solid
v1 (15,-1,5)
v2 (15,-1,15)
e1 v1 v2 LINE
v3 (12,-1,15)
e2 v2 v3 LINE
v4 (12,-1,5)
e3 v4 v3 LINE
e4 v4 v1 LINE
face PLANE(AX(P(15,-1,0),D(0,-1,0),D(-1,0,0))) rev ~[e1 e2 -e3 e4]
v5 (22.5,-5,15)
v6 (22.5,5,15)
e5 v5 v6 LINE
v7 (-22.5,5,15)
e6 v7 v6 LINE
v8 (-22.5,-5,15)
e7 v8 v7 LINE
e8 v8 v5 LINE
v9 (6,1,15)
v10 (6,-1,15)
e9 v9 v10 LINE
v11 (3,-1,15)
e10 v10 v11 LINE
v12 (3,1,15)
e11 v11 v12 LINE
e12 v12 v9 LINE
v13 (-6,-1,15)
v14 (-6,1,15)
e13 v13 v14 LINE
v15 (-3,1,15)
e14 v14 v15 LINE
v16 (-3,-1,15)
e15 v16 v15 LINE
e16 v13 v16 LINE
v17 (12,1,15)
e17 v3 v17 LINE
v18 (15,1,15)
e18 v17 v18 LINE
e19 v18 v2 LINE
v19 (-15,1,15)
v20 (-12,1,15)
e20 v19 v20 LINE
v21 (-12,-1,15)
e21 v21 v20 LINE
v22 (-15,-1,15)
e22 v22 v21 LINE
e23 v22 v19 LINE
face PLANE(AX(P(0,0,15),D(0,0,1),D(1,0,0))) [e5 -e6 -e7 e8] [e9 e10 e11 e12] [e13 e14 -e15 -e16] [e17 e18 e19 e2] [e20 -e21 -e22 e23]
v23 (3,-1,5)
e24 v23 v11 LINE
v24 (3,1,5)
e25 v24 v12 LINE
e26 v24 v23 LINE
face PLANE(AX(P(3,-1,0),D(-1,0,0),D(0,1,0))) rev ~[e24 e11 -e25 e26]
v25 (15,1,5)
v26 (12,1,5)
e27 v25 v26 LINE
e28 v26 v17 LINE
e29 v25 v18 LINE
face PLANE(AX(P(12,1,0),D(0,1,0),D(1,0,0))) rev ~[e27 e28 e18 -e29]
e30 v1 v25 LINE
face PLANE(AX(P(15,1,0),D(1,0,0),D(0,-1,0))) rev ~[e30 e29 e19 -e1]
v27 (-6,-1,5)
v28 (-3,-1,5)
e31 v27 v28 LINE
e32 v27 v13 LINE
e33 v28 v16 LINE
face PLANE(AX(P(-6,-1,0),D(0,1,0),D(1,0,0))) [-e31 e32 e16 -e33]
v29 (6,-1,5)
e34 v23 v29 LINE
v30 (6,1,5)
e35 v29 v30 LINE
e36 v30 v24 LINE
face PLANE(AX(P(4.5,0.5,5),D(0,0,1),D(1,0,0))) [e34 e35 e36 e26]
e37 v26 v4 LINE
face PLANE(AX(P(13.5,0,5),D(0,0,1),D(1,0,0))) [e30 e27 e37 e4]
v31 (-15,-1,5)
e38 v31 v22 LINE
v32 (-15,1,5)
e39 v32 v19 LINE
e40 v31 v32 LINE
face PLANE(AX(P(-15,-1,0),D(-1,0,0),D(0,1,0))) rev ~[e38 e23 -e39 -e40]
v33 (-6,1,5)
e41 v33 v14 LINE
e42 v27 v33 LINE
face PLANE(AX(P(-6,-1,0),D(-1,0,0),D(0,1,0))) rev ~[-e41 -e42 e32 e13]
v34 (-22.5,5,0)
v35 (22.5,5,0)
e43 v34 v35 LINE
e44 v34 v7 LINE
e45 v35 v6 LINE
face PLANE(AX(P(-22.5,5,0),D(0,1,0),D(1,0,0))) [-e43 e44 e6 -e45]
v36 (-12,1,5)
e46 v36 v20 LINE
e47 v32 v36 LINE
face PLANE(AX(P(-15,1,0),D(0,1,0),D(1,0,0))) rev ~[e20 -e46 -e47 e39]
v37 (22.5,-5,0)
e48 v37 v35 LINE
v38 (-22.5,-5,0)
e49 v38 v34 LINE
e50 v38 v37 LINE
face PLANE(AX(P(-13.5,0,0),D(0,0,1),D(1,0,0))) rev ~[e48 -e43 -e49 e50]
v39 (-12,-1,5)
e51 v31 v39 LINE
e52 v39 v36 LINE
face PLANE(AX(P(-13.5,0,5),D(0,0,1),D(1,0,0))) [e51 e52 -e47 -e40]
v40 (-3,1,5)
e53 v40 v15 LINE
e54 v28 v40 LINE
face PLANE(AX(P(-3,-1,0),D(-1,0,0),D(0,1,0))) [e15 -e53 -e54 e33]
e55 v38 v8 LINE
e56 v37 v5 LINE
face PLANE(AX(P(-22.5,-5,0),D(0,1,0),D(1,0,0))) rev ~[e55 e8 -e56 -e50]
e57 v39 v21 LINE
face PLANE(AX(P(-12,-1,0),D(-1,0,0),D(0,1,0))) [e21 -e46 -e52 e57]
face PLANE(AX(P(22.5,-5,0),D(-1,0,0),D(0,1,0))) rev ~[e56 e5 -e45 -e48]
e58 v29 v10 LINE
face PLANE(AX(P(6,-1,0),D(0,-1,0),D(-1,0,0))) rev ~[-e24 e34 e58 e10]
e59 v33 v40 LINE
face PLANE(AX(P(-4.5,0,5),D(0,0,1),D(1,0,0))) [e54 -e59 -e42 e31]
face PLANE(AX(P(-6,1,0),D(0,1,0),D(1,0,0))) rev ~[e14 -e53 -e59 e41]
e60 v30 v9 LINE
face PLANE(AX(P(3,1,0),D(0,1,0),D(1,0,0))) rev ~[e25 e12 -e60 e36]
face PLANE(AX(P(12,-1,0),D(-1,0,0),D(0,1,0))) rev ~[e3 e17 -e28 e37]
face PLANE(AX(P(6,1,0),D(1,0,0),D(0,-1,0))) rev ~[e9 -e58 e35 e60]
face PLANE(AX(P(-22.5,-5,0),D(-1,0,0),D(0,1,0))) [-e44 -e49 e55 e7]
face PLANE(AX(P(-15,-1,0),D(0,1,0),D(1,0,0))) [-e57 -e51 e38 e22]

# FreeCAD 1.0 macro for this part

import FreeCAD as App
import Part
import Sketcher
from FreeCAD import Vector

doc = App.newDocument("Part")
body = doc.addObject("PartDesign::Body", "Body")

# Sketch on XY plane
sketch1 = doc.addObject("Sketcher::SketchObject", "Sketch")
body.addObject(sketch1)
sketch1.AttachmentSupport = (doc.XY_Plane, [""])
sketch1.MapMode = "FlatFace"
sketch1.addGeometry(Part.LineSegment(Vector(-22.5, 5, 0), Vector(-22.5, -5, 0)), False)
sketch1.addGeometry(Part.LineSegment(Vector(-22.5, -5, 0), Vector(22.5, -5, 0)), False)
sketch1.addGeometry(Part.LineSegment(Vector(22.5, -5, 0), Vector(22.5, 5, 0)), False)
sketch1.addGeometry(Part.LineSegment(Vector(22.5, 5, 0), Vector(-22.5, 5, 0)), False)
sketch1.addGeometry(Part.LineSegment(Vector(-12, -1, 0), Vector(-15, -1, 0)), False)
sketch1.addGeometry(Part.LineSegment(Vector(-15, -1, 0), Vector(-15, 1, 0)), False)
sketch1.addGeometry(Part.LineSegment(Vector(-15, 1, 0), Vector(-12, 1, 0)), False)
sketch1.addGeometry(Part.LineSegment(Vector(-12, 1, 0), Vector(-12, -1, 0)), False)
sketch1.addGeometry(Part.LineSegment(Vector(-3, -1, 0), Vector(-6, -1, 0)), False)
sketch1.addGeometry(Part.LineSegment(Vector(-6, -1, 0), Vector(-6, 1, 0)), False)
sketch1.addGeometry(Part.LineSegment(Vector(-6, 1, 0), Vector(-3, 1, 0)), False)
sketch1.addGeometry(Part.LineSegment(Vector(-3, 1, 0), Vector(-3, -1, 0)), False)
sketch1.addGeometry(Part.LineSegment(Vector(6, -1, 0), Vector(3, -1, 0)), False)
sketch1.addGeometry(Part.LineSegment(Vector(3, -1, 0), Vector(3, 1, 0)), False)
sketch1.addGeometry(Part.LineSegment(Vector(3, 1, 0), Vector(6, 1, 0)), False)
sketch1.addGeometry(Part.LineSegment(Vector(6, 1, 0), Vector(6, -1, 0)), False)
sketch1.addGeometry(Part.LineSegment(Vector(15, -1, 0), Vector(12, -1, 0)), False)
sketch1.addGeometry(Part.LineSegment(Vector(12, -1, 0), Vector(12, 1, 0)), False)
sketch1.addGeometry(Part.LineSegment(Vector(12, 1, 0), Vector(15, 1, 0)), False)
sketch1.addGeometry(Part.LineSegment(Vector(15, 1, 0), Vector(15, -1, 0)), False)
sketch1.addConstraint(Sketcher.Constraint("Coincident", 0, 2, 1, 1))
sketch1.addConstraint(Sketcher.Constraint("Coincident", 1, 2, 2, 1))
sketch1.addConstraint(Sketcher.Constraint("Coincident", 2, 2, 3, 1))
sketch1.addConstraint(Sketcher.Constraint("Coincident", 3, 2, 0, 1))
sketch1.addConstraint(Sketcher.Constraint("Coincident", 4, 2, 5, 1))
sketch1.addConstraint(Sketcher.Constraint("Coincident", 5, 2, 6, 1))
sketch1.addConstraint(Sketcher.Constraint("Coincident", 6, 2, 7, 1))
sketch1.addConstraint(Sketcher.Constraint("Coincident", 7, 2, 4, 1))
sketch1.addConstraint(Sketcher.Constraint("Coincident", 8, 2, 9, 1))
sketch1.addConstraint(Sketcher.Constraint("Coincident", 9, 2, 10, 1))
sketch1.addConstraint(Sketcher.Constraint("Coincident", 10, 2, 11, 1))
sketch1.addConstraint(Sketcher.Constraint("Coincident", 11, 2, 8, 1))
sketch1.addConstraint(Sketcher.Constraint("Coincident", 12, 2, 13, 1))
sketch1.addConstraint(Sketcher.Constraint("Coincident", 13, 2, 14, 1))
sketch1.addConstraint(Sketcher.Constraint("Coincident", 14, 2, 15, 1))
sketch1.addConstraint(Sketcher.Constraint("Coincident", 15, 2, 12, 1))
sketch1.addConstraint(Sketcher.Constraint("Coincident", 16, 2, 17, 1))
sketch1.addConstraint(Sketcher.Constraint("Coincident", 17, 2, 18, 1))
sketch1.addConstraint(Sketcher.Constraint("Coincident", 18, 2, 19, 1))
sketch1.addConstraint(Sketcher.Constraint("Coincident", 19, 2, 16, 1))
sketch1.addConstraint(Sketcher.Constraint("Vertical", 0))
sketch1.addConstraint(Sketcher.Constraint("Horizontal", 1))
sketch1.addConstraint(Sketcher.Constraint("Vertical", 2))
sketch1.addConstraint(Sketcher.Constraint("Horizontal", 3))
sketch1.addConstraint(Sketcher.Constraint("Horizontal", 4))
sketch1.addConstraint(Sketcher.Constraint("Vertical", 5))
sketch1.addConstraint(Sketcher.Constraint("Horizontal", 6))
sketch1.addConstraint(Sketcher.Constraint("Vertical", 7))
sketch1.addConstraint(Sketcher.Constraint("Horizontal", 8))
sketch1.addConstraint(Sketcher.Constraint("Vertical", 9))
sketch1.addConstraint(Sketcher.Constraint("Horizontal", 10))
sketch1.addConstraint(Sketcher.Constraint("Vertical", 11))
sketch1.addConstraint(Sketcher.Constraint("Horizontal", 12))
sketch1.addConstraint(Sketcher.Constraint("Vertical", 13))
sketch1.addConstraint(Sketcher.Constraint("Horizontal", 14))
sketch1.addConstraint(Sketcher.Constraint("Vertical", 15))
sketch1.addConstraint(Sketcher.Constraint("Horizontal", 16))
sketch1.addConstraint(Sketcher.Constraint("Vertical", 17))
sketch1.addConstraint(Sketcher.Constraint("Horizontal", 18))
sketch1.addConstraint(Sketcher.Constraint("Vertical", 19))
sketch1.addConstraint(Sketcher.Constraint("Symmetric", 0, 2, 2, 2, -1, 1))
sketch1.addConstraint(Sketcher.Constraint("Symmetric", 10, 2, 12, 2, -1, 1))
sketch1.addConstraint(Sketcher.Constraint("Symmetric", 8, 2, 14, 2, -1, 1))
sketch1.addConstraint(Sketcher.Constraint("Symmetric", 6, 2, 16, 2, -1, 1))
sketch1.addConstraint(Sketcher.Constraint("Symmetric", 4, 2, 18, 2, -1, 1))
sketch1.addConstraint(Sketcher.Constraint("Horizontal", 7, 2, 8, 2))
sketch1.addConstraint(Sketcher.Constraint("Horizontal", 6, 2, 9, 2))
sketch1.addConstraint(Sketcher.Constraint("Horizontal", 11, 2, 12, 2))
sketch1.addConstraint(Sketcher.Constraint("Equal", 6, 8))
sketch1.addConstraint(Sketcher.Constraint("DistanceX", 1, 1, 1, 2, 45.0))
sketch1.addConstraint(Sketcher.Constraint("DistanceX", 4, 2, 4, 1, 3.0))
sketch1.addConstraint(Sketcher.Constraint("DistanceY", 0, 2, 0, 1, 10.0))
sketch1.addConstraint(Sketcher.Constraint("DistanceY", 5, 1, 5, 2, 2.0))
sketch1.addConstraint(Sketcher.Constraint("DistanceX", 4, 2, -1, 1, 15.0))
sketch1.addConstraint(Sketcher.Constraint("DistanceX", 8, 2, -1, 1, 6.0))
pad1 = doc.addObject("PartDesign::Pad", "Pad")
body.addObject(pad1)
pad1.Profile = sketch1
pad1.Length = 15

# Sketch on XY plane
sketch2 = doc.addObject("Sketcher::SketchObject", "Sketch001")
body.addObject(sketch2)
sketch2.AttachmentSupport = (doc.XY_Plane, [""])
sketch2.MapMode = "FlatFace"
sketch2.addGeometry(Part.LineSegment(Vector(-15, 1, 0), Vector(-15, -1, 0)), False)
sketch2.addGeometry(Part.LineSegment(Vector(-15, -1, 0), Vector(-12, -1, 0)), False)
sketch2.addGeometry(Part.LineSegment(Vector(-12, -1, 0), Vector(-12, 1, 0)), False)
sketch2.addGeometry(Part.LineSegment(Vector(-12, 1, 0), Vector(-15, 1, 0)), False)
sketch2.addGeometry(Part.LineSegment(Vector(-6, 1, 0), Vector(-6, -1, 0)), False)
sketch2.addGeometry(Part.LineSegment(Vector(-6, -1, 0), Vector(-3, -1, 0)), False)
sketch2.addGeometry(Part.LineSegment(Vector(-3, -1, 0), Vector(-3, 1, 0)), False)
sketch2.addGeometry(Part.LineSegment(Vector(-3, 1, 0), Vector(-6, 1, 0)), False)
sketch2.addGeometry(Part.LineSegment(Vector(3, 1, 0), Vector(3, -1, 0)), False)
sketch2.addGeometry(Part.LineSegment(Vector(3, -1, 0), Vector(6, -1, 0)), False)
sketch2.addGeometry(Part.LineSegment(Vector(6, -1, 0), Vector(6, 1, 0)), False)
sketch2.addGeometry(Part.LineSegment(Vector(6, 1, 0), Vector(3, 1, 0)), False)
sketch2.addGeometry(Part.LineSegment(Vector(12, 1, 0), Vector(12, -1, 0)), False)
sketch2.addGeometry(Part.LineSegment(Vector(12, -1, 0), Vector(15, -1, 0)), False)
sketch2.addGeometry(Part.LineSegment(Vector(15, -1, 0), Vector(15, 1, 0)), False)
sketch2.addGeometry(Part.LineSegment(Vector(15, 1, 0), Vector(12, 1, 0)), False)
sketch2.addConstraint(Sketcher.Constraint("Coincident", 0, 2, 1, 1))
sketch2.addConstraint(Sketcher.Constraint("Coincident", 1, 2, 2, 1))
sketch2.addConstraint(Sketcher.Constraint("Coincident", 2, 2, 3, 1))
sketch2.addConstraint(Sketcher.Constraint("Coincident", 3, 2, 0, 1))
sketch2.addConstraint(Sketcher.Constraint("Coincident", 4, 2, 5, 1))
sketch2.addConstraint(Sketcher.Constraint("Coincident", 5, 2, 6, 1))
sketch2.addConstraint(Sketcher.Constraint("Coincident", 6, 2, 7, 1))
sketch2.addConstraint(Sketcher.Constraint("Coincident", 7, 2, 4, 1))
sketch2.addConstraint(Sketcher.Constraint("Coincident", 8, 2, 9, 1))
sketch2.addConstraint(Sketcher.Constraint("Coincident", 9, 2, 10, 1))
sketch2.addConstraint(Sketcher.Constraint("Coincident", 10, 2, 11, 1))
sketch2.addConstraint(Sketcher.Constraint("Coincident", 11, 2, 8, 1))
sketch2.addConstraint(Sketcher.Constraint("Coincident", 12, 2, 13, 1))
sketch2.addConstraint(Sketcher.Constraint("Coincident", 13, 2, 14, 1))
sketch2.addConstraint(Sketcher.Constraint("Coincident", 14, 2, 15, 1))
sketch2.addConstraint(Sketcher.Constraint("Coincident", 15, 2, 12, 1))
sketch2.addConstraint(Sketcher.Constraint("Vertical", 0))
sketch2.addConstraint(Sketcher.Constraint("Horizontal", 1))
sketch2.addConstraint(Sketcher.Constraint("Vertical", 2))
sketch2.addConstraint(Sketcher.Constraint("Horizontal", 3))
sketch2.addConstraint(Sketcher.Constraint("Vertical", 4))
sketch2.addConstraint(Sketcher.Constraint("Horizontal", 5))
sketch2.addConstraint(Sketcher.Constraint("Vertical", 6))
sketch2.addConstraint(Sketcher.Constraint("Horizontal", 7))
sketch2.addConstraint(Sketcher.Constraint("Vertical", 8))
sketch2.addConstraint(Sketcher.Constraint("Horizontal", 9))
sketch2.addConstraint(Sketcher.Constraint("Vertical", 10))
sketch2.addConstraint(Sketcher.Constraint("Horizontal", 11))
sketch2.addConstraint(Sketcher.Constraint("Vertical", 12))
sketch2.addConstraint(Sketcher.Constraint("Horizontal", 13))
sketch2.addConstraint(Sketcher.Constraint("Vertical", 14))
sketch2.addConstraint(Sketcher.Constraint("Horizontal", 15))
sketch2.addConstraint(Sketcher.Constraint("Symmetric", 6, 2, 8, 2, -1, 1))
sketch2.addConstraint(Sketcher.Constraint("Symmetric", 4, 2, 10, 2, -1, 1))
sketch2.addConstraint(Sketcher.Constraint("Symmetric", 2, 2, 12, 2, -1, 1))
sketch2.addConstraint(Sketcher.Constraint("Symmetric", 0, 2, 14, 2, -1, 1))
sketch2.addConstraint(Sketcher.Constraint("Horizontal", 1, 2, 4, 2))
sketch2.addConstraint(Sketcher.Constraint("Horizontal", 3, 2, 6, 2))
sketch2.addConstraint(Sketcher.Constraint("Horizontal", 5, 2, 8, 2))
sketch2.addConstraint(Sketcher.Constraint("Equal", 3, 5))
sketch2.addConstraint(Sketcher.Constraint("DistanceX", 1, 1, 1, 2, 3.0))
sketch2.addConstraint(Sketcher.Constraint("DistanceY", 0, 2, 0, 1, 2.0))
sketch2.addConstraint(Sketcher.Constraint("DistanceX", 0, 2, -1, 1, 15.0))
sketch2.addConstraint(Sketcher.Constraint("DistanceX", 4, 2, -1, 1, 6.0))
pad2 = doc.addObject("PartDesign::Pad", "Pad001")
body.addObject(pad2)
pad2.Profile = sketch2
pad2.Length = 5

doc.recompute()
